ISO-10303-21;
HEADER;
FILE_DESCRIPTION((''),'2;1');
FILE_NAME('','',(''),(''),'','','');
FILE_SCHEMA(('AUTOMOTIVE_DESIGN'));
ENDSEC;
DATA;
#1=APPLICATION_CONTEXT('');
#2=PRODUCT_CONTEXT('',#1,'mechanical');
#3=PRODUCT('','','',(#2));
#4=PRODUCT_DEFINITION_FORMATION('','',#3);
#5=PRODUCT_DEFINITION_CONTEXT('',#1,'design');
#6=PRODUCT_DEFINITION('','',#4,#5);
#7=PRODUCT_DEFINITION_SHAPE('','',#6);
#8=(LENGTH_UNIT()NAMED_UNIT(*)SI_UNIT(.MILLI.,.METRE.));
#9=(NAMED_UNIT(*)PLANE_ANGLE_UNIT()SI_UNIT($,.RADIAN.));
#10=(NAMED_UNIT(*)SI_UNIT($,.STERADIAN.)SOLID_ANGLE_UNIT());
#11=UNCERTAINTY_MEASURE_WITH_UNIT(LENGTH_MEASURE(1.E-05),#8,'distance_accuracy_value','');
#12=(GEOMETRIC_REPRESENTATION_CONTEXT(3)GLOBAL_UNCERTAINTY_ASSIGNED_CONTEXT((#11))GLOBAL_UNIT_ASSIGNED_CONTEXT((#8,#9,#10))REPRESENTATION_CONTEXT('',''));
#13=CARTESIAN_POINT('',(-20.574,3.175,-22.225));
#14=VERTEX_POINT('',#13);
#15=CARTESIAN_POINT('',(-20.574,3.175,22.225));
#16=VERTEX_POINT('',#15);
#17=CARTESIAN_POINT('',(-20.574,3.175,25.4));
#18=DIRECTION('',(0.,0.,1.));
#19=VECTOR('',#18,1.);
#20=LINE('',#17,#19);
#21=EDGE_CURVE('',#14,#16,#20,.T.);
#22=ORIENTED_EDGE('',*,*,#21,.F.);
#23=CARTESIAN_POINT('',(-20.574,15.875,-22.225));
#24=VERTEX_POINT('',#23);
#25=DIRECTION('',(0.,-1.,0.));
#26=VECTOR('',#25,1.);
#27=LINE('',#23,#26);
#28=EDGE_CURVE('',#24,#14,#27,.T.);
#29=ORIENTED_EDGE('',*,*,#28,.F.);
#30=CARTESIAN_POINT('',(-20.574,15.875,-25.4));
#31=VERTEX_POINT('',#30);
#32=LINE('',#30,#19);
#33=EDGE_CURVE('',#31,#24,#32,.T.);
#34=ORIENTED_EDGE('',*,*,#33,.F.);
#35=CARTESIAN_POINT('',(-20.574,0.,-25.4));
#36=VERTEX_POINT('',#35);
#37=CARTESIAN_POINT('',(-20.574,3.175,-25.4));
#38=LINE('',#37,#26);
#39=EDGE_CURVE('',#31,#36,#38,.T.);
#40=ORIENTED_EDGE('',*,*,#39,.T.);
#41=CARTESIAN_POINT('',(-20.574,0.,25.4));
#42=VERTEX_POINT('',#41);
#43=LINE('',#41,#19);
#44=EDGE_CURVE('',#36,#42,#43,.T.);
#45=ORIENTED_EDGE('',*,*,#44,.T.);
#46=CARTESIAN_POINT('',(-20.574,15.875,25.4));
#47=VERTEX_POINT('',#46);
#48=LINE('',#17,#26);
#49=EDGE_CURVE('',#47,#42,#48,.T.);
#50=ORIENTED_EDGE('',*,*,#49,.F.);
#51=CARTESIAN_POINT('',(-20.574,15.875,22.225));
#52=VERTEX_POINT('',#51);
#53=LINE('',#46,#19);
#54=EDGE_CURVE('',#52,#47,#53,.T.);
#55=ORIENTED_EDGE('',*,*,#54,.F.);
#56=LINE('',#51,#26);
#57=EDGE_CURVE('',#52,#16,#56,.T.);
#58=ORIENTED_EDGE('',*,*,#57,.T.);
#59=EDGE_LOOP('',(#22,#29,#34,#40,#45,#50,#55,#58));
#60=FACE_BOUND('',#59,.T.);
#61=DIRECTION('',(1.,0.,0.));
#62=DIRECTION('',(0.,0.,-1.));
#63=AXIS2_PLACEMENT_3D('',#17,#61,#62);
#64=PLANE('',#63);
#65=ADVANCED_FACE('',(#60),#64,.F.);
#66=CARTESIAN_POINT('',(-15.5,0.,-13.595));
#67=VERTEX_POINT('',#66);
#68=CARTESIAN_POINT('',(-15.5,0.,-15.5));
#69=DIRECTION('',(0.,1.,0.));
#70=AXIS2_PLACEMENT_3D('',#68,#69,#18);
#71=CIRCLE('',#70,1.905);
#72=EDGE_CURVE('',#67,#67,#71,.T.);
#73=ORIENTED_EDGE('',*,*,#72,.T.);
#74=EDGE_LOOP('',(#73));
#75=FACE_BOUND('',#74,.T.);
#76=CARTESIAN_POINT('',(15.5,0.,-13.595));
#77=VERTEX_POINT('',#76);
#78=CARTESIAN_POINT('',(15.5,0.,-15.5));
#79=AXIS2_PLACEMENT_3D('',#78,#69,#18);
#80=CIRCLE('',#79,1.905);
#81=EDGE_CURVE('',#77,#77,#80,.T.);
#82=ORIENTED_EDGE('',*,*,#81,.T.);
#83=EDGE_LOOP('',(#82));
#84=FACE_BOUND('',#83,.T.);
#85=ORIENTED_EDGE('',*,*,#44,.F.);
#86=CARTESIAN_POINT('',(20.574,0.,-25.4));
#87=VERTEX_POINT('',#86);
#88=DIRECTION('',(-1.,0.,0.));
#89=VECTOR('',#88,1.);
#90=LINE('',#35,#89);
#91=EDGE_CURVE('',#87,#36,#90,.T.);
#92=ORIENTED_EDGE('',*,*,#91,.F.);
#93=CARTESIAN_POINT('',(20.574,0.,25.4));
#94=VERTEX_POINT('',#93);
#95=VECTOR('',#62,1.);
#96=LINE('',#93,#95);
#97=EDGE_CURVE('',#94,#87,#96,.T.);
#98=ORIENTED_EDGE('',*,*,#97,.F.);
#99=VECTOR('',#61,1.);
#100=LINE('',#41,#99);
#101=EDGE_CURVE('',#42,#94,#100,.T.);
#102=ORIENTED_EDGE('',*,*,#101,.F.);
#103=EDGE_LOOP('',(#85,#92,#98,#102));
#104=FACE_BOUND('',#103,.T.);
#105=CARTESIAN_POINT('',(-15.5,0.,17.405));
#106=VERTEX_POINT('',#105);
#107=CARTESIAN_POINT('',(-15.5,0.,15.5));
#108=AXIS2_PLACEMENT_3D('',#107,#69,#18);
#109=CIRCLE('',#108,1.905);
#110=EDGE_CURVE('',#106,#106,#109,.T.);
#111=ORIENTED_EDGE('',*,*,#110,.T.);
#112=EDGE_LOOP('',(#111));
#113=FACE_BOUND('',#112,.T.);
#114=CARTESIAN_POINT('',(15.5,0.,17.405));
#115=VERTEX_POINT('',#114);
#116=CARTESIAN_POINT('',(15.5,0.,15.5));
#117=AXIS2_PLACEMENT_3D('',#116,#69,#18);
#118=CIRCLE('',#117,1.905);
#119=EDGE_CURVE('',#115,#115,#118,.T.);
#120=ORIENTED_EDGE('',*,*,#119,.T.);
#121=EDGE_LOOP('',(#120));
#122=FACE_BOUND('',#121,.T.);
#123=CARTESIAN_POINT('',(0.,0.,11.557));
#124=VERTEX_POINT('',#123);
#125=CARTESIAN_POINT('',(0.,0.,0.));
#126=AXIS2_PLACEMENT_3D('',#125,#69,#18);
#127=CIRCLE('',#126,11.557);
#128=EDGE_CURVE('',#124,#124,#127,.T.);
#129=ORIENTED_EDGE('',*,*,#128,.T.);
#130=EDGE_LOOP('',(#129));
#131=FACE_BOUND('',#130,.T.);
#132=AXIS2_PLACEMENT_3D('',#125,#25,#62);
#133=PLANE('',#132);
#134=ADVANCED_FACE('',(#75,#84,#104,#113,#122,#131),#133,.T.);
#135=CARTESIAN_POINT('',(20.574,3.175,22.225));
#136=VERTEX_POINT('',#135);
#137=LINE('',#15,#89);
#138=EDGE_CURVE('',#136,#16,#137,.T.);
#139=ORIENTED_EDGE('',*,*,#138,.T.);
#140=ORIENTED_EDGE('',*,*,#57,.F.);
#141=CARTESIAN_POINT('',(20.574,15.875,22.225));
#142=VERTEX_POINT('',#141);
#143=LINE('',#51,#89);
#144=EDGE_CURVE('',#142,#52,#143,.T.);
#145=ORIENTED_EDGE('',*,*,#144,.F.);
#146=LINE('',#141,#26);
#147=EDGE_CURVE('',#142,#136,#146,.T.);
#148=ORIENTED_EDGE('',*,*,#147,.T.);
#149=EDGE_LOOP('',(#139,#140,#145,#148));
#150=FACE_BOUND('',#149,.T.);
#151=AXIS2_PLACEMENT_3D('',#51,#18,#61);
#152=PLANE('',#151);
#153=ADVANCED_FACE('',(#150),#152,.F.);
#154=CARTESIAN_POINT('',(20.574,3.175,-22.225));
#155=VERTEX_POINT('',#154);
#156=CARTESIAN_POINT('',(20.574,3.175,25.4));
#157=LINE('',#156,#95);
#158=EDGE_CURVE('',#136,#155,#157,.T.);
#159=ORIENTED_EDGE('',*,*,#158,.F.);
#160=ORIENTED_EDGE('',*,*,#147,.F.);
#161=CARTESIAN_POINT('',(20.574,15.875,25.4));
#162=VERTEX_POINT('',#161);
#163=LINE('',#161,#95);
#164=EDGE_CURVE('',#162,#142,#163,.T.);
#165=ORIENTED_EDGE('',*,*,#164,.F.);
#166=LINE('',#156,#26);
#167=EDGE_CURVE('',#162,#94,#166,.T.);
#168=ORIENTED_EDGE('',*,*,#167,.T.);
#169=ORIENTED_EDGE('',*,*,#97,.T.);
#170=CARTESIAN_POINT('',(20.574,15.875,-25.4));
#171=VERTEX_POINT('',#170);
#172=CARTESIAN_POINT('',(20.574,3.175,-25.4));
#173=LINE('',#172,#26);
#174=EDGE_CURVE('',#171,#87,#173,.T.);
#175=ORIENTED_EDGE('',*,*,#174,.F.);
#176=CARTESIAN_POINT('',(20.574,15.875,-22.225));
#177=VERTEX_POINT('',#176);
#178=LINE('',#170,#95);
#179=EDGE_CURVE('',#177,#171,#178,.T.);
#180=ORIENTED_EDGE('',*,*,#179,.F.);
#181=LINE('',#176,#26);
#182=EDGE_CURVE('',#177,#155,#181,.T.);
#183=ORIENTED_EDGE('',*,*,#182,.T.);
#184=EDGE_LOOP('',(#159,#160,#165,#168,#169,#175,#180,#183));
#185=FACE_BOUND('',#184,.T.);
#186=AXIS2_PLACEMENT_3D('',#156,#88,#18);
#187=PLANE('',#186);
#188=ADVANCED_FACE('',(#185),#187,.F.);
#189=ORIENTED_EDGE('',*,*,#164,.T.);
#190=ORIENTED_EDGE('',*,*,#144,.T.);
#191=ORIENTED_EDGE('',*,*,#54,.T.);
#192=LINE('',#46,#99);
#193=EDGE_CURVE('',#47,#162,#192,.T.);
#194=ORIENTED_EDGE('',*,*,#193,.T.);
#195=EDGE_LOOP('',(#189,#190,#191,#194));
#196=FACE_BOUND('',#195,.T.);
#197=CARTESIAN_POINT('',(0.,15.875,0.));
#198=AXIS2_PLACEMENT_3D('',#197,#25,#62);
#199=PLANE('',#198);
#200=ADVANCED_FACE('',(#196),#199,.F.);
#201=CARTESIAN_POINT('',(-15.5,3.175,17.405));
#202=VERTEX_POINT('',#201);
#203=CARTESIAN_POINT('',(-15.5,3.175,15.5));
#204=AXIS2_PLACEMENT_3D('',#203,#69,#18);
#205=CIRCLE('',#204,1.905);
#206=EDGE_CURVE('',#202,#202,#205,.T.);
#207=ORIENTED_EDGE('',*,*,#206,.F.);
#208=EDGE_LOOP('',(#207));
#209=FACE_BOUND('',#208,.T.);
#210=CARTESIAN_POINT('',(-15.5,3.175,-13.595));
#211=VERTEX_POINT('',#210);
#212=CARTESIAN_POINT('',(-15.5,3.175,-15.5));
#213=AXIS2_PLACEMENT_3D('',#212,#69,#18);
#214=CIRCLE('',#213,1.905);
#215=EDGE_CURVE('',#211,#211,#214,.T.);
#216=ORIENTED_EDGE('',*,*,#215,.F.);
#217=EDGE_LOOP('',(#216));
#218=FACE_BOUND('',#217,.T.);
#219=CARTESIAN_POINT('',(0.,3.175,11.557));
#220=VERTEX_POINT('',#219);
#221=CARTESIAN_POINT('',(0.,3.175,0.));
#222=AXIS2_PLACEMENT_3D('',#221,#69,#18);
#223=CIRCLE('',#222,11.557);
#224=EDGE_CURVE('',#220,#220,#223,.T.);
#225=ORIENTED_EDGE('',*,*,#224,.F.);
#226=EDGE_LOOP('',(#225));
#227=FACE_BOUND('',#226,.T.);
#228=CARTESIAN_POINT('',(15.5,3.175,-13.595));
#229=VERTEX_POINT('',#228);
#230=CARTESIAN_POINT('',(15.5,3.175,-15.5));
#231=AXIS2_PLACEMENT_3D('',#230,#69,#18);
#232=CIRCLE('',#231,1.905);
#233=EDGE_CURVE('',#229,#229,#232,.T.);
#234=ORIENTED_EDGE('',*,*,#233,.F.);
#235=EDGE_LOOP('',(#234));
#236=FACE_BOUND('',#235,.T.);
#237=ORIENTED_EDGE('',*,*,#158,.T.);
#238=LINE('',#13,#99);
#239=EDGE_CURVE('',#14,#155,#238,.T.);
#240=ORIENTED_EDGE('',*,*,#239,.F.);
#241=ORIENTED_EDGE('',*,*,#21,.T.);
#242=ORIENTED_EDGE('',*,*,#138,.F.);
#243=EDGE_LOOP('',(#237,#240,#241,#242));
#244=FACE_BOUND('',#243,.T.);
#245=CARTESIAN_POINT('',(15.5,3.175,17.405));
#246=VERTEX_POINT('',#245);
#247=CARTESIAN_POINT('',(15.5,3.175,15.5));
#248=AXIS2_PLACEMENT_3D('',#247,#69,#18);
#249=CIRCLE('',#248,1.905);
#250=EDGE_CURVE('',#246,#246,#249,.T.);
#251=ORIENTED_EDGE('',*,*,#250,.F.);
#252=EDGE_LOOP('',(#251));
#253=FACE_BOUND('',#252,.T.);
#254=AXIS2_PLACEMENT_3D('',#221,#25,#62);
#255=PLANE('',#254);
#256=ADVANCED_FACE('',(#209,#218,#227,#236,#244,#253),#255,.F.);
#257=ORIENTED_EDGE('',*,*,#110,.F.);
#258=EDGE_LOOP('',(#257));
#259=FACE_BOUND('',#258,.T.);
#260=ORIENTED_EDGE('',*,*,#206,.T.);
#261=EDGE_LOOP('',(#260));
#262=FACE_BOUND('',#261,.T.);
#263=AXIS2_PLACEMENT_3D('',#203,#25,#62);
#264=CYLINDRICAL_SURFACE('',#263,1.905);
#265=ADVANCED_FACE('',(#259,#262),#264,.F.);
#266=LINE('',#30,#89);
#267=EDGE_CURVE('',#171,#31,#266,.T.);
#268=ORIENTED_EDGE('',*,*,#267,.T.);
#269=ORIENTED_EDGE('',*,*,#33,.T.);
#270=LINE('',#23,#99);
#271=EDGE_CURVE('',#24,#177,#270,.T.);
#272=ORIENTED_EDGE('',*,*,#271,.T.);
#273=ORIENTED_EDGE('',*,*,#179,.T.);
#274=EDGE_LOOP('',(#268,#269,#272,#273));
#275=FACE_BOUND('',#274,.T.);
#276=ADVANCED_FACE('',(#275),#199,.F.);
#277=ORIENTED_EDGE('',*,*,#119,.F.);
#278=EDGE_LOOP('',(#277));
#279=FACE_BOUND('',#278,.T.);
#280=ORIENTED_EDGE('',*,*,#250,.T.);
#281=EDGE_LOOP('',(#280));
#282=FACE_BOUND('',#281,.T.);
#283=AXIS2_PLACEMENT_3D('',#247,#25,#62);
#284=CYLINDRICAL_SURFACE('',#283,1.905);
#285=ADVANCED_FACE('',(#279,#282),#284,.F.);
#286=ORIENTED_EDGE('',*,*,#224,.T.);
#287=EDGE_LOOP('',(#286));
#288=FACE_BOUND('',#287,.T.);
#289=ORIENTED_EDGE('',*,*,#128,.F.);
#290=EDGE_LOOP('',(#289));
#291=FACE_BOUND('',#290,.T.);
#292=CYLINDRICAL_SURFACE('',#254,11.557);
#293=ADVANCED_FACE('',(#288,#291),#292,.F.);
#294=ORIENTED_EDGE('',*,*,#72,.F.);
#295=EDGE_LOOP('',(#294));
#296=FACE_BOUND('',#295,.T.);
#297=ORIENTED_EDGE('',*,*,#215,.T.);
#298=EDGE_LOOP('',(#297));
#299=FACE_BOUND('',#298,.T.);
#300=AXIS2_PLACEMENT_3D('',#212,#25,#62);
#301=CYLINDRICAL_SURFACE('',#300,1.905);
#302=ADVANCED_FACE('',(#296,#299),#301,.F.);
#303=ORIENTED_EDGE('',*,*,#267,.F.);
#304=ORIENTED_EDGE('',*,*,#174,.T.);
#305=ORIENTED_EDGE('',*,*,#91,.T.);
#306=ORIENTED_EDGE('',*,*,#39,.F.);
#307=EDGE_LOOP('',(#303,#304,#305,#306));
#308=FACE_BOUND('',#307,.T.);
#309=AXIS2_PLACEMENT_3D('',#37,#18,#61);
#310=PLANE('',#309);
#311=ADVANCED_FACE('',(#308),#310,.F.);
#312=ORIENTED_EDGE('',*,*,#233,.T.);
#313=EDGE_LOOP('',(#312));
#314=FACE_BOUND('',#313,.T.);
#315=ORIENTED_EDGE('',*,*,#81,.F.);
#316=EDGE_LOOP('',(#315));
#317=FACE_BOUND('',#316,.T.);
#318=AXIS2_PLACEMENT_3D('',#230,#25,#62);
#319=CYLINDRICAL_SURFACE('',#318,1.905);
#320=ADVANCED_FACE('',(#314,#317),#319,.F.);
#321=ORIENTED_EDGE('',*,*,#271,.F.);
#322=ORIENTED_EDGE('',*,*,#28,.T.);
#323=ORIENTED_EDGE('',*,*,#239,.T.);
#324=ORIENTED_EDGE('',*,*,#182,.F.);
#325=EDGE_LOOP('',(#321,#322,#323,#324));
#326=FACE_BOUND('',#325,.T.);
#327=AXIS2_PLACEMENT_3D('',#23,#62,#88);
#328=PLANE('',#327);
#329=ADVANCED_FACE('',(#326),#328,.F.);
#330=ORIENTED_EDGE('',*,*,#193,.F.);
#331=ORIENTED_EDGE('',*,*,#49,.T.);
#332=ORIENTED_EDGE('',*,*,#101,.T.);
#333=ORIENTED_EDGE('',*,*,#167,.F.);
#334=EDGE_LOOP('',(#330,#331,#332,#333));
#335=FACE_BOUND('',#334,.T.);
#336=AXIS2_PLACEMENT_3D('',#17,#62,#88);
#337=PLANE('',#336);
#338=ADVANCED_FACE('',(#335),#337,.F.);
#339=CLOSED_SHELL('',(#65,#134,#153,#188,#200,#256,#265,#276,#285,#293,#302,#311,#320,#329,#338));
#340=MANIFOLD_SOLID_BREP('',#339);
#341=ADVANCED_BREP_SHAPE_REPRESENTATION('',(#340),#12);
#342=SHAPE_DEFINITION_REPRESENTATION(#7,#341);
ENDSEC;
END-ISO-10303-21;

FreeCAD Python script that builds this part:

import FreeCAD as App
import Part
import Sketcher
Q = App.Units.Quantity

doc = App.newDocument("Part")
body = doc.addObject("PartDesign::Body", "Body")

# Sketch on XZ plane
sketch1 = doc.addObject("Sketcher::SketchObject", "Sketch")
body.addObject(sketch1)
sketch1.AttachmentSupport = (doc.XZ_Plane, [""])
sketch1.MapMode = "FlatFace"
sketch1.addGeometry([
    Part.LineSegment(App.Vector(-20.6, -25.4, 0), App.Vector(-20.6, 25.4, 0)),  # 0
    Part.LineSegment(App.Vector(-20.6, 25.4, 0), App.Vector(20.6, 25.4, 0)),  # 1
    Part.LineSegment(App.Vector(20.6, 25.4, 0), App.Vector(20.6, -25.4, 0)),  # 2
    Part.LineSegment(App.Vector(20.6, -25.4, 0), App.Vector(-20.6, -25.4, 0)),  # 3
    Part.Circle(App.Vector(-15.5, 15.5, 0), App.Vector(0, 0, 1), 1.9),  # 4
    Part.Circle(App.Vector(15.5, 15.5, 0), App.Vector(0, 0, 1), 1.9),  # 5
    Part.Circle(App.Vector(-15.5, -15.5, 0), App.Vector(0, 0, 1), 1.9),  # 6
    Part.Circle(App.Vector(0, 0, 0), App.Vector(0, 0, 1), 11.6),  # 7
    Part.Circle(App.Vector(15.5, -15.5, 0), App.Vector(0, 0, 1), 1.9),  # 8
], False)
sketch1.addConstraint([
    Sketcher.Constraint("Coincident", 0, 2, 1, 1),
    Sketcher.Constraint("Coincident", 1, 2, 2, 1),
    Sketcher.Constraint("Coincident", 2, 2, 3, 1),
    Sketcher.Constraint("Coincident", 3, 2, 0, 1),
    Sketcher.Constraint("Vertical", 0),
    Sketcher.Constraint("Horizontal", 1),
    Sketcher.Constraint("Vertical", 2),
    Sketcher.Constraint("Horizontal", 3),
    Sketcher.Constraint("Coincident", 7, 3, -1, 1),
    Sketcher.Constraint("Equal", 4, 5),
    Sketcher.Constraint("Equal", 5, 6),
    Sketcher.Constraint("Equal", 6, 8),
    Sketcher.Constraint("Symmetric", 5, 3, 6, 3, -1, 1),
    Sketcher.Constraint("Symmetric", 4, 3, 8, 3, -1, 1),
    Sketcher.Constraint("Symmetric", 0, 2, 2, 2, -1, 1),
    Sketcher.Constraint("Symmetric", 4, 3, 5, 3, -2),
    Sketcher.Constraint("Diameter", 4, Q("0.15 in")),
    Sketcher.Constraint("Diameter", 7, Q("0.91 in")),
    Sketcher.Constraint("DistanceY", 0, 1, 0, 2, Q("2 in")),
    Sketcher.Constraint("DistanceX", 1, 1, 1, 2, Q("1.62 in")),
    Sketcher.Constraint("DistanceX", 4, 3, -1, 1, Q("15.5 mm")),
    Sketcher.Constraint("DistanceY", -1, 1, 4, 3, Q("15.5 mm")),
])
pad1 = doc.addObject("PartDesign::Pad", "Pad")
body.addObject(pad1)
pad1.Profile = sketch1
pad1.Length = Q("0.125 in")
pad1.Reversed = True

# Sketch on XZ plane
sketch2 = doc.addObject("Sketcher::SketchObject", "Sketch001")
body.addObject(sketch2)
sketch2.AttachmentSupport = (doc.XZ_Plane, [""])
sketch2.MapMode = "FlatFace"
sketch2.AttachmentOffset = App.Placement(App.Vector(0, 0, -0.125 * 25.4), App.Rotation())
sketch2.addGeometry([
    Part.LineSegment(App.Vector(-20.6, 22.2, 0), App.Vector(-20.6, 25.4, 0)),  # 0
    Part.LineSegment(App.Vector(-20.6, 25.4, 0), App.Vector(20.6, 25.4, 0)),  # 1
    Part.LineSegment(App.Vector(20.6, 25.4, 0), App.Vector(20.6, 22.2, 0)),  # 2
    Part.LineSegment(App.Vector(20.6, 22.2, 0), App.Vector(-20.6, 22.2, 0)),  # 3
    Part.LineSegment(App.Vector(-20.6, -25.4, 0), App.Vector(-20.6, -22.2, 0)),  # 4
    Part.LineSegment(App.Vector(-20.6, -22.2, 0), App.Vector(20.6, -22.2, 0)),  # 5
    Part.LineSegment(App.Vector(20.6, -22.2, 0), App.Vector(20.6, -25.4, 0)),  # 6
    Part.LineSegment(App.Vector(20.6, -25.4, 0), App.Vector(-20.6, -25.4, 0)),  # 7
], False)
sketch2.addConstraint([
    Sketcher.Constraint("Coincident", 0, 2, 1, 1),
    Sketcher.Constraint("Coincident", 1, 2, 2, 1),
    Sketcher.Constraint("Coincident", 2, 2, 3, 1),
    Sketcher.Constraint("Coincident", 3, 2, 0, 1),
    Sketcher.Constraint("Coincident", 4, 2, 5, 1),
    Sketcher.Constraint("Coincident", 5, 2, 6, 1),
    Sketcher.Constraint("Coincident", 6, 2, 7, 1),
    Sketcher.Constraint("Coincident", 7, 2, 4, 1),
    Sketcher.Constraint("Vertical", 0),
    Sketcher.Constraint("Horizontal", 1),
    Sketcher.Constraint("Vertical", 2),
    Sketcher.Constraint("Horizontal", 3),
    Sketcher.Constraint("Vertical", 4),
    Sketcher.Constraint("Horizontal", 5),
    Sketcher.Constraint("Vertical", 6),
    Sketcher.Constraint("Horizontal", 7),
    Sketcher.Constraint("Symmetric", 2, 2, 4, 2, -1, 1),
    Sketcher.Constraint("Symmetric", 0, 2, 6, 2, -1, 1),
    Sketcher.Constraint("Vertical", 3, 2, 4, 2),
    Sketcher.Constraint("DistanceY", -1, 1, 0, 2, Q("1 in")),
    Sketcher.Constraint("DistanceX", 1, 1, 1, 2, Q("1.62 in")),
    Sketcher.Constraint("DistanceY", 0, 1, 0, 2, Q("0.125 in")),
])
pad2 = doc.addObject("PartDesign::Pad", "Pad001")
body.addObject(pad2)
pad2.Profile = sketch2
pad2.Length = Q("0.5 in")
pad2.Reversed = True

doc.recompute()
